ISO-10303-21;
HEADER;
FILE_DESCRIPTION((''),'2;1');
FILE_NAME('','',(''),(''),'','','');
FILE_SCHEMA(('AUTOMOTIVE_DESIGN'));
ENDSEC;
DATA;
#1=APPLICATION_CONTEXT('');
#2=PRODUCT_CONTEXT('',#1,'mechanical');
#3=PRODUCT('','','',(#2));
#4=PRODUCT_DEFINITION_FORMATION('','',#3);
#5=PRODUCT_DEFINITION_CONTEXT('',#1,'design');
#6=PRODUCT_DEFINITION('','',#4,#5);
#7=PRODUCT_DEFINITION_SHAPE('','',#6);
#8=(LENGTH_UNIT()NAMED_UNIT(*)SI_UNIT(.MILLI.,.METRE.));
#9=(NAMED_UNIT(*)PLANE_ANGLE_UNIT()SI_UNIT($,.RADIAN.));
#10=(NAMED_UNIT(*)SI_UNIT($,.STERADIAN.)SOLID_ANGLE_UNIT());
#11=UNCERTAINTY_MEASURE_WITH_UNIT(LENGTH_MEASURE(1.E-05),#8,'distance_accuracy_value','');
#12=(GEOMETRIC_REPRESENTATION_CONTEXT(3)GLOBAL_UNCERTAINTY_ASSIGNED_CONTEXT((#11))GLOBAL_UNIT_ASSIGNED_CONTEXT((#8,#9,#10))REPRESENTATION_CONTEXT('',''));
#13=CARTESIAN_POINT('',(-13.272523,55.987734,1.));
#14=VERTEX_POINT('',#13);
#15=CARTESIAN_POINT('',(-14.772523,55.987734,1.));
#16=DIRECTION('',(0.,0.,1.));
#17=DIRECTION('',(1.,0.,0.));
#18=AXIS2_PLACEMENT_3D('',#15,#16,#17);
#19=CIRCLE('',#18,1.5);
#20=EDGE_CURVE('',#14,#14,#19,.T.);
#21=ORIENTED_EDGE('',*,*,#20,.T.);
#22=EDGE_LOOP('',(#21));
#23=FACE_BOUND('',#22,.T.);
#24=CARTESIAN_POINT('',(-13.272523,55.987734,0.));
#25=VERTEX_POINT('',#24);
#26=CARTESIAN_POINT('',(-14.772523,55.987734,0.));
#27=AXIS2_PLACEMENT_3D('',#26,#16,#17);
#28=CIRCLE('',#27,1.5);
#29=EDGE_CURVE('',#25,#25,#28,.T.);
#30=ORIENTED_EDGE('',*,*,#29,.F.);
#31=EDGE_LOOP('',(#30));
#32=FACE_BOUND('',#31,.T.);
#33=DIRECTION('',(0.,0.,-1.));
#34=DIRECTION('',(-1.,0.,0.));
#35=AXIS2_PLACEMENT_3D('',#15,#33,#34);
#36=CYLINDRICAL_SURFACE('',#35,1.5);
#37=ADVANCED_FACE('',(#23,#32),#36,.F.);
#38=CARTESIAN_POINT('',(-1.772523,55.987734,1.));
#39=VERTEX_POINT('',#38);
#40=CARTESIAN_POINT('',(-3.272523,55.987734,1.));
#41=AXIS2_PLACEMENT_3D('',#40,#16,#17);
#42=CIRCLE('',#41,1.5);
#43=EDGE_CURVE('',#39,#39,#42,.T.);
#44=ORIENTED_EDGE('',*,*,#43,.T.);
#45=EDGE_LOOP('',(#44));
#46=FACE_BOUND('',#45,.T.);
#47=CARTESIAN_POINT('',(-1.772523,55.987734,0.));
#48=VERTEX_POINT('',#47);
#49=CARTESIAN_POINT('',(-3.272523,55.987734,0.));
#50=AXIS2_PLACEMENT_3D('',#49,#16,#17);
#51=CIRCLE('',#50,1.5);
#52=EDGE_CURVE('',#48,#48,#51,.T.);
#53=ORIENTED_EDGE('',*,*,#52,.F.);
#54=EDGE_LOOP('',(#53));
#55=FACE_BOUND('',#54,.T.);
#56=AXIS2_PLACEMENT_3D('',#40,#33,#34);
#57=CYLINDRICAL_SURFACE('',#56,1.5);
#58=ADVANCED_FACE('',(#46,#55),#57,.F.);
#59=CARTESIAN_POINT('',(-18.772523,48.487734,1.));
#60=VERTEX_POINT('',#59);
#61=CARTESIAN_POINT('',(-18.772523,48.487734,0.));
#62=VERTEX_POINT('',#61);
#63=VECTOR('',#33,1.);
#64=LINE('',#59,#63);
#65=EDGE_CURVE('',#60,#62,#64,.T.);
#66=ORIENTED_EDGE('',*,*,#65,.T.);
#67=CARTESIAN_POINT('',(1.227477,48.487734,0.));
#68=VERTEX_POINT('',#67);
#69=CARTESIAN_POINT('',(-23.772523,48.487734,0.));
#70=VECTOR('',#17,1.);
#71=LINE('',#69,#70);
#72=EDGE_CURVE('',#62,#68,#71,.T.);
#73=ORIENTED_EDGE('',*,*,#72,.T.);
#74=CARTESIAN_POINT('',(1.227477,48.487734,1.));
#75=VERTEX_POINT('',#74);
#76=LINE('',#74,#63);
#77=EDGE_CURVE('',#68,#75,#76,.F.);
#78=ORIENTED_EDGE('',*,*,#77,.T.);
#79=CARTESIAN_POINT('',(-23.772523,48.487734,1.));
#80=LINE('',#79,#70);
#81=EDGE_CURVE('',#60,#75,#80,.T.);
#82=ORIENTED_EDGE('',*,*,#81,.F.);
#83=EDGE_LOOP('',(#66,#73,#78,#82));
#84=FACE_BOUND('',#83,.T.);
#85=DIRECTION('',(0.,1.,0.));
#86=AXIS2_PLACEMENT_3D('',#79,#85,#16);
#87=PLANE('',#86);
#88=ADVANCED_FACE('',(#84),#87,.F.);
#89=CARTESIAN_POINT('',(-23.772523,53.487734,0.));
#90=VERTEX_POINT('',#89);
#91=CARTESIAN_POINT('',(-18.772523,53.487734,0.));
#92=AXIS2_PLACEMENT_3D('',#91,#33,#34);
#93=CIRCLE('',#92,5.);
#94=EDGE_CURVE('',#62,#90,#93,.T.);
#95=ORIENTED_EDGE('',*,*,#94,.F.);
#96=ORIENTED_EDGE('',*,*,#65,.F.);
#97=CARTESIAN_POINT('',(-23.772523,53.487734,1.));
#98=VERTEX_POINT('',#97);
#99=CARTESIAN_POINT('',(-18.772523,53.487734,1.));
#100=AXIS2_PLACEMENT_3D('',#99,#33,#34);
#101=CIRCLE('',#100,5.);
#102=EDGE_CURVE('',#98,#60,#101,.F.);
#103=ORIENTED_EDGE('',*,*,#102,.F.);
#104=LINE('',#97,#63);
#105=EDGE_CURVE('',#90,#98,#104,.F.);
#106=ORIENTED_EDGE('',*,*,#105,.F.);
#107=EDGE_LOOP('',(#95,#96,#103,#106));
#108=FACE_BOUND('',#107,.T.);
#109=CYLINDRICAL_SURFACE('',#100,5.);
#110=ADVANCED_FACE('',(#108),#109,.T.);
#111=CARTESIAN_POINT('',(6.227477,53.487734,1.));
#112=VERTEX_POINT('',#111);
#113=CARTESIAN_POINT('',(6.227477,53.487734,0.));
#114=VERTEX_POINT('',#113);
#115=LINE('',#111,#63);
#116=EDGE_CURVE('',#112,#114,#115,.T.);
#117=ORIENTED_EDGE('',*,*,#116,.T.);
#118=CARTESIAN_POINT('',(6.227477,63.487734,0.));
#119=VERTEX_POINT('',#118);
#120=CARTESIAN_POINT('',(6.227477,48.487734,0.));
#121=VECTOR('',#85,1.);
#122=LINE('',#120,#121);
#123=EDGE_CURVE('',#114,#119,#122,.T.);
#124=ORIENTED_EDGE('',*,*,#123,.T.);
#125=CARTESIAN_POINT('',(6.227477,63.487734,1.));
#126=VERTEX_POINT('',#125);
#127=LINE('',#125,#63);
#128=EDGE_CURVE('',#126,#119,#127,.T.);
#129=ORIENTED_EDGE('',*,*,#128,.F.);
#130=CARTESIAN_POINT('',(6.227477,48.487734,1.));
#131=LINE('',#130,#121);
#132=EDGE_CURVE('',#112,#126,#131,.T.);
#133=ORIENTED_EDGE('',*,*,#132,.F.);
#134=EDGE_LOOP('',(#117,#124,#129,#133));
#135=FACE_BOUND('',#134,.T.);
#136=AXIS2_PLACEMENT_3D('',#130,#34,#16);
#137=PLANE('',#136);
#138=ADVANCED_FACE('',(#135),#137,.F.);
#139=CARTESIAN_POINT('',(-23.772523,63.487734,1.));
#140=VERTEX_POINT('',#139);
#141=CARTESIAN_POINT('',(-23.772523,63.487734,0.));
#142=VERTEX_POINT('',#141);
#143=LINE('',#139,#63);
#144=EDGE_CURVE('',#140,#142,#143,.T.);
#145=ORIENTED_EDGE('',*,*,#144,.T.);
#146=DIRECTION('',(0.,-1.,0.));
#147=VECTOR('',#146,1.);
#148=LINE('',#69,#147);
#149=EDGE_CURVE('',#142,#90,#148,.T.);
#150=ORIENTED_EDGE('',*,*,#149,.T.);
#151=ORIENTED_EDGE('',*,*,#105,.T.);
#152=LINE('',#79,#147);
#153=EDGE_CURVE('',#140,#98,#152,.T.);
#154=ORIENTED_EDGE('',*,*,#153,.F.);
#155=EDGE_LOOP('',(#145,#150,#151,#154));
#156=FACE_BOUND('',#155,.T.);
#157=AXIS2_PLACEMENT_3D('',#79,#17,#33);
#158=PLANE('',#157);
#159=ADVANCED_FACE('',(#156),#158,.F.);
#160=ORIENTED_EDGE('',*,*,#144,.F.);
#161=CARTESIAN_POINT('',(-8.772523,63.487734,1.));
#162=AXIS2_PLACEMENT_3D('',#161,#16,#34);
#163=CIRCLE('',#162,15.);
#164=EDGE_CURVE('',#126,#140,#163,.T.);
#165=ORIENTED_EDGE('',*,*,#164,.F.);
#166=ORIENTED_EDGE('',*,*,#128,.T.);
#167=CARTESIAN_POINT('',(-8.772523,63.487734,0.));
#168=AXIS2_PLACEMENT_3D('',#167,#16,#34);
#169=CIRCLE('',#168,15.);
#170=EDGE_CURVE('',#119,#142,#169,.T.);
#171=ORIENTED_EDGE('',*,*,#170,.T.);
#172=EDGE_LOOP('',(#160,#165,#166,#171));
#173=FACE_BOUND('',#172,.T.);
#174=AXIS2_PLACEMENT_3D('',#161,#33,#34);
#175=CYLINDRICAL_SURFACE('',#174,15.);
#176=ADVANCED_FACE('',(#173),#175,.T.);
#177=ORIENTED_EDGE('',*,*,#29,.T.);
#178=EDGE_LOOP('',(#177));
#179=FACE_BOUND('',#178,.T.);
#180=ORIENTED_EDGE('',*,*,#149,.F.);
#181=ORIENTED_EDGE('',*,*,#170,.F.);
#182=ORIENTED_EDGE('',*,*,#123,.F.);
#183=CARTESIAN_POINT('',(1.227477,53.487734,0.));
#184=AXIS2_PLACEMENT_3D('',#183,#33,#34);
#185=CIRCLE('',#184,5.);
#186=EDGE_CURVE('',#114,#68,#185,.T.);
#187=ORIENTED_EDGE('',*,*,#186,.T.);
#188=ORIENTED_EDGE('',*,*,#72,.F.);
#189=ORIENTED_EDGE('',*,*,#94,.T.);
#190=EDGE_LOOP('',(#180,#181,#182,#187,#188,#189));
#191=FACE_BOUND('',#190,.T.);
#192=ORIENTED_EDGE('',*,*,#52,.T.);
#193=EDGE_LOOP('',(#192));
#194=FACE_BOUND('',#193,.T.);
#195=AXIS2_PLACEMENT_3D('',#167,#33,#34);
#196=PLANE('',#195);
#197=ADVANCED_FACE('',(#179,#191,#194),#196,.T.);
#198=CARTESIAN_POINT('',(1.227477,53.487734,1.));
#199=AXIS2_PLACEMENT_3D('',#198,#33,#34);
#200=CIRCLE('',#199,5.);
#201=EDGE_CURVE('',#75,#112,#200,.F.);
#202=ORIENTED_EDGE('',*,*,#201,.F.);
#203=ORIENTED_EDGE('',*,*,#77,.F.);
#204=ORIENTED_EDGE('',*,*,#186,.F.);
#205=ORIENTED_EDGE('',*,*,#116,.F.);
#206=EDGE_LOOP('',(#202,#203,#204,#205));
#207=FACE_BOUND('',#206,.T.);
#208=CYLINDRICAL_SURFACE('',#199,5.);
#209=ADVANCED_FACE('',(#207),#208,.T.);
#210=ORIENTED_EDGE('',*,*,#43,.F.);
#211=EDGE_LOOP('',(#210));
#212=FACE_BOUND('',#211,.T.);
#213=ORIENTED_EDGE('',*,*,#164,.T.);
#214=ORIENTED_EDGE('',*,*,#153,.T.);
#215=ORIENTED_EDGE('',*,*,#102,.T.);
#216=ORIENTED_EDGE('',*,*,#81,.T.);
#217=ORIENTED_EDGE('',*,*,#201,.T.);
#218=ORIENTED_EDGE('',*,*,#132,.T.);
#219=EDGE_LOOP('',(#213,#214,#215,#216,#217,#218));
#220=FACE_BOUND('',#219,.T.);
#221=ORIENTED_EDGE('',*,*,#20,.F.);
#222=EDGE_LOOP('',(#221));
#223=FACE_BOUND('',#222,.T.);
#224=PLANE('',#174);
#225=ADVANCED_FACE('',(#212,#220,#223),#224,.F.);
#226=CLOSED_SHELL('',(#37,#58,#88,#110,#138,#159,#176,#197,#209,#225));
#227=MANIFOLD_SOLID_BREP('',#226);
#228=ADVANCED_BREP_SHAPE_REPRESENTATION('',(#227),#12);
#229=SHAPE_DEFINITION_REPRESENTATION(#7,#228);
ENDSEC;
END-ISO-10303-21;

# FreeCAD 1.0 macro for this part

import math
import FreeCAD as App
import Part
import Sketcher

V = App.Vector


def edges_at(feature, points):
    """Names of the edges that pass closest to the given points."""
    edges = feature.Shape.Edges
    near = lambda p: min(range(len(edges)), key=lambda i: edges[i].distToShape(Part.Vertex(*p))[0])
    return sorted({f"Edge{near(p) + 1}" for p in points})

doc = App.newDocument("Part")
body = doc.addObject("PartDesign::Body", "Body")

# Sketch on XY plane
sketch1 = body.newObject("Sketcher::SketchObject", "Sketch")
sketch1.AttachmentSupport = (doc.getObject("XY_Plane"), [""])
sketch1.MapMode = "FlatFace"
sketch1.addGeometry([
    Part.LineSegment(V(-23.8, 48.5, 0), V(6.2, 48.5, 0)),  # 0
    Part.LineSegment(V(6.2, 48.5, 0), V(6.2, 63.5, 0)),  # 1
    Part.ArcOfCircle(Part.Circle(V(-8.8, 63.5, 0), V(0, 0, 1), 15), math.radians(0), math.radians(180)),  # 2
    Part.LineSegment(V(-23.8, 63.5, 0), V(-23.8, 48.5, 0)),  # 3
    Part.Circle(V(-14.8, 56, 0), V(0, 0, 1), 1.5),  # 4
    Part.Circle(V(-3.3, 56, 0), V(0, 0, 1), 1.5),  # 5
], False)
sketch1.addConstraint([
    Sketcher.Constraint("Coincident", 0, 2, 1, 1),
    Sketcher.Constraint("Tangent", 1, 2, 2, 1),
    Sketcher.Constraint("Tangent", 2, 2, 3, 1),
    Sketcher.Constraint("Coincident", 3, 2, 0, 1),
    Sketcher.Constraint("Horizontal", 0),
    Sketcher.Constraint("Vertical", 1),
    Sketcher.Constraint("Vertical", 3),
    Sketcher.Constraint("Equal", 4, 5),
    Sketcher.Constraint("Horizontal", 4, 3, 5, 3),
    Sketcher.Constraint("Diameter", 4, 3.0),
    Sketcher.Constraint("Radius", 2, 15.0),
    Sketcher.Constraint("DistanceY", 1, 1, 1, 2, 15.0),
    Sketcher.Constraint("DistanceX", 4, 3, 2, 3, 6.0),
    Sketcher.Constraint("DistanceY", 4, 3, 2, 3, 7.5),
    Sketcher.Constraint("DistanceX", 2, 3, 5, 3, 5.5),
    Sketcher.Constraint("DistanceX", 2, 3, -1, 1, 8.772523),
    Sketcher.Constraint("DistanceY", -1, 1, 2, 3, 63.487734),
])
pad1 = body.newObject("PartDesign::Pad", "Pad")
pad1.Profile = sketch1
pad1.Length = 1
doc.recompute()

fillet = body.newObject("PartDesign::Fillet", "Fillet")
fillet.Base = (pad1, edges_at(pad1, [(-23.773, 48.488, 0.5)]))
fillet.Radius = 5
doc.recompute()

fillet2 = body.newObject("PartDesign::Fillet", "Fillet001")
fillet2.Base = (fillet, edges_at(fillet, [(6.227, 48.488, 0.5)]))
fillet2.Radius = 5

doc.recompute()
